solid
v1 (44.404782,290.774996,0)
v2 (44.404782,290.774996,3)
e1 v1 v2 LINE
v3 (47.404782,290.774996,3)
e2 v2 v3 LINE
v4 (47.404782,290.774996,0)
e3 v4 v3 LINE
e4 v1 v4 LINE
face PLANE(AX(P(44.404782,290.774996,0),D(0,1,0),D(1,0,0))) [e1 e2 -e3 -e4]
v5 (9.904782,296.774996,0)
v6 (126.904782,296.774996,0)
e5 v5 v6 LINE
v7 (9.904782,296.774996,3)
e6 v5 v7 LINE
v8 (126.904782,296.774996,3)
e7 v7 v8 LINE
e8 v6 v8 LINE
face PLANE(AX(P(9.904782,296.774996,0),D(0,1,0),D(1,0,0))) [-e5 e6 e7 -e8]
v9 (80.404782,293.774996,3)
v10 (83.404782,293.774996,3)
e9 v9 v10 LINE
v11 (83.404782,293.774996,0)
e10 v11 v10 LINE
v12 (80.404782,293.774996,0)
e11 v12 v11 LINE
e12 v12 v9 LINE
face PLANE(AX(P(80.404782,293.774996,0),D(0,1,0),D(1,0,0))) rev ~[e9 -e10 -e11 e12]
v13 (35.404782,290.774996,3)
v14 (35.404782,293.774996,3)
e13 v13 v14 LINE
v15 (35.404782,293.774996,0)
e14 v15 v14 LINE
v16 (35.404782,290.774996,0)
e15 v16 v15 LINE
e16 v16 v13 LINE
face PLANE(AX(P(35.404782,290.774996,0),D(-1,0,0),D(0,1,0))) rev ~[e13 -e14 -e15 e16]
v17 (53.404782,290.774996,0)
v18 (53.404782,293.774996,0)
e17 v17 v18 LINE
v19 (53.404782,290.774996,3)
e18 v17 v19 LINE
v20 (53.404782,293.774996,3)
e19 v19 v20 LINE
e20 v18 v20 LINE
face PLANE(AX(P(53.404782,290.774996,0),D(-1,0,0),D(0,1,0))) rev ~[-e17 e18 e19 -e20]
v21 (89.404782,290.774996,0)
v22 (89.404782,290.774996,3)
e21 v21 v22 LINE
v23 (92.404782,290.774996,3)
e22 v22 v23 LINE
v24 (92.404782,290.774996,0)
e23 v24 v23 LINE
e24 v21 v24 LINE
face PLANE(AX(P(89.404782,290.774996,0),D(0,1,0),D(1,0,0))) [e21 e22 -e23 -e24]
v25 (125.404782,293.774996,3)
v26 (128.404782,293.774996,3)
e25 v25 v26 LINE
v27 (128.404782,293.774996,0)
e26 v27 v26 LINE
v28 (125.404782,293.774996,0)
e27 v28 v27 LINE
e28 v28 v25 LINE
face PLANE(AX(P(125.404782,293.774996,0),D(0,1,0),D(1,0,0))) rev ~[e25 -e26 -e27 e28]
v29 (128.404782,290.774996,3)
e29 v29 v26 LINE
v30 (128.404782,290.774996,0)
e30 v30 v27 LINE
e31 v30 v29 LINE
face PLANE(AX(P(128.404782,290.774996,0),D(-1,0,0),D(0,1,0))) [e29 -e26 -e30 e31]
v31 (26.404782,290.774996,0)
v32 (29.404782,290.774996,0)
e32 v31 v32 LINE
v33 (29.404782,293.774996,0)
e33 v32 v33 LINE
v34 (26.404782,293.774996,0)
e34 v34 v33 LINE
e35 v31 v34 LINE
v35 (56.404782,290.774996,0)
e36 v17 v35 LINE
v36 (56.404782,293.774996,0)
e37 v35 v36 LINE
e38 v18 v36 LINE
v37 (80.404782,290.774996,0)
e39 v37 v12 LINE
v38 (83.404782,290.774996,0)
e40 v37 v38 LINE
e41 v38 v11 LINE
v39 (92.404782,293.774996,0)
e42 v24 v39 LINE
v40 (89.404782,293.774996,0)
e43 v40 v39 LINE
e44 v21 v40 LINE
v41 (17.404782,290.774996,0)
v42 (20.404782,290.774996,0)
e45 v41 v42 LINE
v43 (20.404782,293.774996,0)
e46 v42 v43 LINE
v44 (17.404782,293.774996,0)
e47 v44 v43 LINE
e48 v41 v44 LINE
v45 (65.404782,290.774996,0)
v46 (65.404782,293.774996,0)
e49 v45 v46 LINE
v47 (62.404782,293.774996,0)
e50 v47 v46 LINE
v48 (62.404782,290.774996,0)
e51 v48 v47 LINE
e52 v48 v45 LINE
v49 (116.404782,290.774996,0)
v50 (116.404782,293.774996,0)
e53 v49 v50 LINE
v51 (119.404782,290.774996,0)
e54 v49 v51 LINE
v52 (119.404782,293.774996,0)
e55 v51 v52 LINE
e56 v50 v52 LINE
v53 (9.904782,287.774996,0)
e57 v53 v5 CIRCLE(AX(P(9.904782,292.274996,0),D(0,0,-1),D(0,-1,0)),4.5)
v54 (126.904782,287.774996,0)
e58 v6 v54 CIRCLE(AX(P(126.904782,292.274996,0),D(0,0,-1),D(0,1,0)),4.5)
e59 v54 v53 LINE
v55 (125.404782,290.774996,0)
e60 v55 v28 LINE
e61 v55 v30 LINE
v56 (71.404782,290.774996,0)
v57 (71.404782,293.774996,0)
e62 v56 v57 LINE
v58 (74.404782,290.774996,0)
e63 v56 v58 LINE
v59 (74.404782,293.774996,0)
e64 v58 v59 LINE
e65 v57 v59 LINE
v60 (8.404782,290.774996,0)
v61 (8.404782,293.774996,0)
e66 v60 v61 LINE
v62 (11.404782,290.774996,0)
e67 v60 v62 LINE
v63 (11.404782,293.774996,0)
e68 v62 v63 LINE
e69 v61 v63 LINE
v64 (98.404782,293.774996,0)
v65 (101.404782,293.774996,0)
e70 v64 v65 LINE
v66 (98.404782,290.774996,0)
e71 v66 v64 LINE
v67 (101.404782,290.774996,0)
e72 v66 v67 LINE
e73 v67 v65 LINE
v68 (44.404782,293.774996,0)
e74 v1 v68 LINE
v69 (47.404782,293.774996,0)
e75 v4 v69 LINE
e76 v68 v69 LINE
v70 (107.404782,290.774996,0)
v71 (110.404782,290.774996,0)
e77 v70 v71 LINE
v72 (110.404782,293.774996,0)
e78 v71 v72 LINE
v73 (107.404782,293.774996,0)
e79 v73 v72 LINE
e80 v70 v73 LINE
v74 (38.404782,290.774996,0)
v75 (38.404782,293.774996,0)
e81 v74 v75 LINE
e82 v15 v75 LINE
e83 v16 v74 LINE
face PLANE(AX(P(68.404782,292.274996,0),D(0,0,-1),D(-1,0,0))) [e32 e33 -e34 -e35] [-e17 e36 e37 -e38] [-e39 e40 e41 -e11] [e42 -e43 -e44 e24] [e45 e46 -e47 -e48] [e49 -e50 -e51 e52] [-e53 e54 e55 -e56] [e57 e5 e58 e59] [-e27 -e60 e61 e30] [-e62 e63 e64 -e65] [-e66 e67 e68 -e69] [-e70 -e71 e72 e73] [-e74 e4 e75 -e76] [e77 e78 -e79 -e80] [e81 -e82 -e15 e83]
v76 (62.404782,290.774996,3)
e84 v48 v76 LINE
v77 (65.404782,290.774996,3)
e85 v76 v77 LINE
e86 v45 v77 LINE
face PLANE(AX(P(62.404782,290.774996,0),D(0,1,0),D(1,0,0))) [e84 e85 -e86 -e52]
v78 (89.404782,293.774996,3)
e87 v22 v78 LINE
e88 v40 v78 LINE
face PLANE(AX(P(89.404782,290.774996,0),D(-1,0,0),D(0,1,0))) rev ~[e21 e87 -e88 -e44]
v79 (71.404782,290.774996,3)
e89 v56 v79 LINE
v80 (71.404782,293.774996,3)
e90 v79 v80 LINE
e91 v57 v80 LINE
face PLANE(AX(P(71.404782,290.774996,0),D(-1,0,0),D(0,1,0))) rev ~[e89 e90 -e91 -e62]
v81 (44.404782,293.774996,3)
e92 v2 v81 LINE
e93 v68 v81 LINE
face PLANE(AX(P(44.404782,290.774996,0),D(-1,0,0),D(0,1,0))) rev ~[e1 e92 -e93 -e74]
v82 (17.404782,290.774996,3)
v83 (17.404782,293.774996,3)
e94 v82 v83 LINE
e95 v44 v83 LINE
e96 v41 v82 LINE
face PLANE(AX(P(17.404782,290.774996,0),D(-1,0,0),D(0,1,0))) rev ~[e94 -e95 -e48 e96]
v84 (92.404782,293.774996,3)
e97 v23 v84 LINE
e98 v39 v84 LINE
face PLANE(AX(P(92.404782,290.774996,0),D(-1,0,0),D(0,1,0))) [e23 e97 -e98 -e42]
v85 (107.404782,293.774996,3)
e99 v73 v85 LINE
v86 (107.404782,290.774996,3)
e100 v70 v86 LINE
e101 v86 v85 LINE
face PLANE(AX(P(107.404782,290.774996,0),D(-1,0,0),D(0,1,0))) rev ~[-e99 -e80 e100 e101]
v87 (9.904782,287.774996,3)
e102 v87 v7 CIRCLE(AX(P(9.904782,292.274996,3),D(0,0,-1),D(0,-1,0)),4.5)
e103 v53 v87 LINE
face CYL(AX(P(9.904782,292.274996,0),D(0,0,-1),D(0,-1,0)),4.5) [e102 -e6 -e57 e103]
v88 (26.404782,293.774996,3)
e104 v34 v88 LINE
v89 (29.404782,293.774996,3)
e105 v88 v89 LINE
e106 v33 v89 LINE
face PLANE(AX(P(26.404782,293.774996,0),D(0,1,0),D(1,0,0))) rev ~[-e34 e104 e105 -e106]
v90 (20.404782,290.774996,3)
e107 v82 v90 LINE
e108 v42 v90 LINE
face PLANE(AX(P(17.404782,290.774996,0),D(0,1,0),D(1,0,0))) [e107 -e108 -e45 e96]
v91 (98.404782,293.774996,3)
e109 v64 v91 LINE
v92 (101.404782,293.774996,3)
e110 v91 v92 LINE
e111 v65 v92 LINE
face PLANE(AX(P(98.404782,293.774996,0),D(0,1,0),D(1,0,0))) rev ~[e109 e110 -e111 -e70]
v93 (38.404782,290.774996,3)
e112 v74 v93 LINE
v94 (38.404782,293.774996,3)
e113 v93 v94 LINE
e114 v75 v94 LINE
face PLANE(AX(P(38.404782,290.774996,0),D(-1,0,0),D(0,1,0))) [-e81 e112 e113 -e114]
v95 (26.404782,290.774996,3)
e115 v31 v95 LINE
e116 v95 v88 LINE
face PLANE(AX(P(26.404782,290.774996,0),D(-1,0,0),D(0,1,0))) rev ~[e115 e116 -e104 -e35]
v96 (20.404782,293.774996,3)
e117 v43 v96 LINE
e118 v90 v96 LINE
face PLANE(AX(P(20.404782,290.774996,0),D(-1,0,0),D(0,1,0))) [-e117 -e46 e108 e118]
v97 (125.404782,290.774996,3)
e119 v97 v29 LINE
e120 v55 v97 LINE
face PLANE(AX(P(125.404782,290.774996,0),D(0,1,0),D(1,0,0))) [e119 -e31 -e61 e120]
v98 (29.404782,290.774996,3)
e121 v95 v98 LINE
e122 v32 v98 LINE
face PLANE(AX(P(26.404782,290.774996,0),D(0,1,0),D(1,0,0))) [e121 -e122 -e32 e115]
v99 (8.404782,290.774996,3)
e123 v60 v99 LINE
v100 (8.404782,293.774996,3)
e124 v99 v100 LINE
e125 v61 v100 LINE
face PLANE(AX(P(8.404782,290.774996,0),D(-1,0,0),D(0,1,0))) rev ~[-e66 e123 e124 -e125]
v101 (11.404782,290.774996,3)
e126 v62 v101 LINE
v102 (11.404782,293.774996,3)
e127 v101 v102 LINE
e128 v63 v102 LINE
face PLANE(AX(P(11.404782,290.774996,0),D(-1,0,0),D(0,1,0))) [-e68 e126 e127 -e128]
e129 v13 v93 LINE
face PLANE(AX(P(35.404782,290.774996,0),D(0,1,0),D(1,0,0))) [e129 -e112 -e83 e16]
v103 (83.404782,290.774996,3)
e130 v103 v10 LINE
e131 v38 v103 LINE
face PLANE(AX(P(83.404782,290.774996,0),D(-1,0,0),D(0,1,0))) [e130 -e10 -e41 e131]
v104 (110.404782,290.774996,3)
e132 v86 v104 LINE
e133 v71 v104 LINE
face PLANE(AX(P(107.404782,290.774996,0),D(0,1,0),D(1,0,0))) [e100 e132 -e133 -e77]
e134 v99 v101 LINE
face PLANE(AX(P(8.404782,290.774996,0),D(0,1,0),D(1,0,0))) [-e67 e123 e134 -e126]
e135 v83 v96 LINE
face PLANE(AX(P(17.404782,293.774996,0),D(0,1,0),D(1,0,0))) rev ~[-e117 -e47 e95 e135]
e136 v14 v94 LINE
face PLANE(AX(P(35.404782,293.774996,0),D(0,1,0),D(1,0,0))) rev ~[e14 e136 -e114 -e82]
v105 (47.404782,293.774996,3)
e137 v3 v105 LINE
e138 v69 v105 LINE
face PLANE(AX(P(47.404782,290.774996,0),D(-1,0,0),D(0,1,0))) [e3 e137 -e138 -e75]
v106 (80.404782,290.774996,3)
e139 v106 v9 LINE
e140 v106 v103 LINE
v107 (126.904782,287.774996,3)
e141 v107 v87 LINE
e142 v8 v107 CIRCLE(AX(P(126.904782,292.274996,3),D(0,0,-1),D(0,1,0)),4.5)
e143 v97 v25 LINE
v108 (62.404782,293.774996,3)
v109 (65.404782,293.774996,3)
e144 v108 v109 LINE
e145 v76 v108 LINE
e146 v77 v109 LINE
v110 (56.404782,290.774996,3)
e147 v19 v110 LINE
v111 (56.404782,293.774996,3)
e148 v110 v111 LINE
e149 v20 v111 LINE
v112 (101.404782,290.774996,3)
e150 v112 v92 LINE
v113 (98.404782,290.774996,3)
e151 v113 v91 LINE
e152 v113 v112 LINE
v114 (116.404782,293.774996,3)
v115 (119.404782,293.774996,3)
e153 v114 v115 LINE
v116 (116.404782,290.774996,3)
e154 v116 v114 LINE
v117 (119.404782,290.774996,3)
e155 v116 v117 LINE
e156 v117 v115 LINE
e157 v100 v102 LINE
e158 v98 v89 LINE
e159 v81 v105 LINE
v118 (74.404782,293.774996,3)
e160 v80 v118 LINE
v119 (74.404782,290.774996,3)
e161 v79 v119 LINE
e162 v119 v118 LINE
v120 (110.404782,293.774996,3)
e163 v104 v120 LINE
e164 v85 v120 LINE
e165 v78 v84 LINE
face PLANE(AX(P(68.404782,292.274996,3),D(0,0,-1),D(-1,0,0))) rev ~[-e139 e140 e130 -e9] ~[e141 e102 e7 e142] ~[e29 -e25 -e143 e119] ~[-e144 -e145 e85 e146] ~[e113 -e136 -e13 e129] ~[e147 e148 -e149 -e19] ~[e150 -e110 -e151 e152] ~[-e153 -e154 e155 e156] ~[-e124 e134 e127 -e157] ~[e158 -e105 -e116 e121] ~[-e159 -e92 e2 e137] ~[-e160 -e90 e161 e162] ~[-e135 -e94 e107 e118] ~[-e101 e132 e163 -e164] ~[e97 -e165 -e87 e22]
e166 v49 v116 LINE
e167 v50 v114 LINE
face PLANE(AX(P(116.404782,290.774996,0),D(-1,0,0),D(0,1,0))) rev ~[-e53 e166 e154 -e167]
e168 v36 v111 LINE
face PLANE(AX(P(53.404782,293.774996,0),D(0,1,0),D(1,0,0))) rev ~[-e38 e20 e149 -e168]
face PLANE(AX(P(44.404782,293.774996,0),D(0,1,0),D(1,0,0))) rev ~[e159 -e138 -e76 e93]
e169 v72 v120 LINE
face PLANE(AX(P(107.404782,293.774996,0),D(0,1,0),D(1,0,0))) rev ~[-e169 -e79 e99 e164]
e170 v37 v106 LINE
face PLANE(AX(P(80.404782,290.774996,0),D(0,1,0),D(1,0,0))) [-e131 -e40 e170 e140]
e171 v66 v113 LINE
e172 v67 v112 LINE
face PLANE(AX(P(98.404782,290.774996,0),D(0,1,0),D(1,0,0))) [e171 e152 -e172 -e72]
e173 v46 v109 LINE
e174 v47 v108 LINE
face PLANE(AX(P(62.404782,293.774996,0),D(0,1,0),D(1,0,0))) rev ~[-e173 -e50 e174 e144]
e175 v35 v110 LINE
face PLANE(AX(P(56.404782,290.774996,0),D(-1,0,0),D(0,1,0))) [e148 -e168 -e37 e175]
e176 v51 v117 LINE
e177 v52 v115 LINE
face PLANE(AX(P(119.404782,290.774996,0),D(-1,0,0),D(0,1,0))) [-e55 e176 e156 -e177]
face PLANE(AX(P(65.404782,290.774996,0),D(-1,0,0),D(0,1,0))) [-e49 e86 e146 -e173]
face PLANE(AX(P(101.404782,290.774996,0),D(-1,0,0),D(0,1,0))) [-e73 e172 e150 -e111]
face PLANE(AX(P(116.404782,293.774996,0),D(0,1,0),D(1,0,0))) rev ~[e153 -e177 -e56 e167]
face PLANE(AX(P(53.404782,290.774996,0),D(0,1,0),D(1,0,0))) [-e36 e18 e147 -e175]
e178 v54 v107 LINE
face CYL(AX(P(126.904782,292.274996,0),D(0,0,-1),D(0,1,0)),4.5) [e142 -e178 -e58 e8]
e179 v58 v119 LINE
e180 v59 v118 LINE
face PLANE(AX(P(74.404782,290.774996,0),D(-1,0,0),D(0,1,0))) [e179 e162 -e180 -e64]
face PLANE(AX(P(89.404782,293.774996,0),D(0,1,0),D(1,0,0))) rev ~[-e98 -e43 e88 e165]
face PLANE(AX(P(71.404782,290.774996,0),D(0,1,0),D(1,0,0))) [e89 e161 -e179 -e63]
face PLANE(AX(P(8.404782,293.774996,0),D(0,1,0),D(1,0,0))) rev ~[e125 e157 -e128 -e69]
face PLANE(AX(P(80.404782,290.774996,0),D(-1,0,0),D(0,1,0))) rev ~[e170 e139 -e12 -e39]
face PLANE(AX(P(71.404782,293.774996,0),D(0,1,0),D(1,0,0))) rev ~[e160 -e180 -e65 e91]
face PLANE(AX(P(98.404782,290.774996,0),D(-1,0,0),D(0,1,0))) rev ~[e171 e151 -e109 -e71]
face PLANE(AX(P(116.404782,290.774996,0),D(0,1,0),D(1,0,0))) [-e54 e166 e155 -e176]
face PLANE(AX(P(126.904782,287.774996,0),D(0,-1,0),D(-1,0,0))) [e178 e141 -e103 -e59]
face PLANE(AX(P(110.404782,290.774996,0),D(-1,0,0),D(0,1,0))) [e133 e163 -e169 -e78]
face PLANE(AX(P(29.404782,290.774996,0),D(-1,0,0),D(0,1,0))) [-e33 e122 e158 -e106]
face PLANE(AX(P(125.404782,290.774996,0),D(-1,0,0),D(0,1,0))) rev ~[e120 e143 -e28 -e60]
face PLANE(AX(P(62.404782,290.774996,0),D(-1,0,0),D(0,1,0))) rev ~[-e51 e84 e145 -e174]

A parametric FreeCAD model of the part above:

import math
import FreeCAD as App
import Part
import Sketcher


def add_polygon(sketch, points):
    """Adds a closed chain of lines whose ends are joined by coincident constraints."""
    first, n = sketch.GeometryCount, len(points)
    for a, b in zip(points, points[1:] + points[:1]):
        sketch.addGeometry(Part.LineSegment(App.Vector(*a, 0), App.Vector(*b, 0)), False)
    for i in range(n):
        sketch.addConstraint(Sketcher.Constraint("Coincident", first + i, 2, first + (i + 1) % n, 1))

doc = App.newDocument("Part")
body = doc.addObject("PartDesign::Body", "Body")

# Sketch on XY plane
sketch1 = body.newObject("Sketcher::SketchObject", "Sketch")
sketch1.AttachmentSupport = (doc.getObject("XY_Plane"), [""])
sketch1.MapMode = "FlatFace"
sketch1.addGeometry(Part.LineSegment(App.Vector(126.9, 296.8, 0), App.Vector(9.9, 296.8, 0)), False)  # 0
sketch1.addGeometry(Part.ArcOfCircle(Part.Circle(App.Vector(9.9, 292.3, 0), App.Vector(0, 0, 1), 4.5), math.radians(90), math.radians(270)), False)  # 1
sketch1.addGeometry(Part.LineSegment(App.Vector(9.9, 287.8, 0), App.Vector(126.9, 287.8, 0)), False)  # 2
sketch1.addGeometry(Part.ArcOfCircle(Part.Circle(App.Vector(126.9, 292.3, 0), App.Vector(0, 0, 1), 4.5), math.radians(-90), math.radians(90)), False)  # 3
add_polygon(sketch1, [(125.4, 290.8), (125.4, 293.8), (128.4, 293.8), (128.4, 290.8)])  # lines 4-7
add_polygon(sketch1, [(116.4, 290.8), (116.4, 293.8), (119.4, 293.8), (119.4, 290.8)])  # lines 8-11
add_polygon(sketch1, [(107.4, 290.8), (107.4, 293.8), (110.4, 293.8), (110.4, 290.8)])  # lines 12-15
add_polygon(sketch1, [(98.4, 290.8), (98.4, 293.8), (101.4, 293.8), (101.4, 290.8)])  # lines 16-19
add_polygon(sketch1, [(89.4, 290.8), (89.4, 293.8), (92.4, 293.8), (92.4, 290.8)])  # lines 20-23
add_polygon(sketch1, [(80.4, 290.8), (80.4, 293.8), (83.4, 293.8), (83.4, 290.8)])  # lines 24-27
add_polygon(sketch1, [(71.4, 290.8), (71.4, 293.8), (74.4, 293.8), (74.4, 290.8)])  # lines 28-31
add_polygon(sketch1, [(62.4, 290.8), (62.4, 293.8), (65.4, 293.8), (65.4, 290.8)])  # lines 32-35
add_polygon(sketch1, [(53.4, 290.8), (53.4, 293.8), (56.4, 293.8), (56.4, 290.8)])  # lines 36-39
add_polygon(sketch1, [(44.4, 290.8), (44.4, 293.8), (47.4, 293.8), (47.4, 290.8)])  # lines 40-43
add_polygon(sketch1, [(35.4, 290.8), (35.4, 293.8), (38.4, 293.8), (38.4, 290.8)])  # lines 44-47
add_polygon(sketch1, [(26.4, 290.8), (26.4, 293.8), (29.4, 293.8), (29.4, 290.8)])  # lines 48-51
add_polygon(sketch1, [(17.4, 290.8), (17.4, 293.8), (20.4, 293.8), (20.4, 290.8)])  # lines 52-55
add_polygon(sketch1, [(8.4, 290.8), (8.4, 293.8), (11.4, 293.8), (11.4, 290.8)])  # lines 56-59
sketch1.addConstraint(Sketcher.Constraint("Tangent", 0, 2, 1, 1))
sketch1.addConstraint(Sketcher.Constraint("Tangent", 1, 2, 2, 1))
sketch1.addConstraint(Sketcher.Constraint("Tangent", 2, 2, 3, 1))
sketch1.addConstraint(Sketcher.Constraint("Tangent", 3, 2, 0, 1))
sketch1.addConstraint(Sketcher.Constraint("Horizontal", 0))
sketch1.addConstraint(Sketcher.Constraint("Horizontal", 2))
sketch1.addConstraint(Sketcher.Constraint("Vertical", 4))
sketch1.addConstraint(Sketcher.Constraint("Horizontal", 5))
sketch1.addConstraint(Sketcher.Constraint("Vertical", 6))
sketch1.addConstraint(Sketcher.Constraint("Horizontal", 7))
sketch1.addConstraint(Sketcher.Constraint("Vertical", 8))
sketch1.addConstraint(Sketcher.Constraint("Horizontal", 9))
sketch1.addConstraint(Sketcher.Constraint("Vertical", 10))
sketch1.addConstraint(Sketcher.Constraint("Horizontal", 11))
sketch1.addConstraint(Sketcher.Constraint("Vertical", 12))
sketch1.addConstraint(Sketcher.Constraint("Horizontal", 13))
sketch1.addConstraint(Sketcher.Constraint("Vertical", 14))
sketch1.addConstraint(Sketcher.Constraint("Horizontal", 15))
sketch1.addConstraint(Sketcher.Constraint("Vertical", 16))
sketch1.addConstraint(Sketcher.Constraint("Horizontal", 17))
sketch1.addConstraint(Sketcher.Constraint("Vertical", 18))
sketch1.addConstraint(Sketcher.Constraint("Horizontal", 19))
sketch1.addConstraint(Sketcher.Constraint("Vertical", 20))
sketch1.addConstraint(Sketcher.Constraint("Horizontal", 21))
sketch1.addConstraint(Sketcher.Constraint("Vertical", 22))
sketch1.addConstraint(Sketcher.Constraint("Horizontal", 23))
sketch1.addConstraint(Sketcher.Constraint("Vertical", 24))
sketch1.addConstraint(Sketcher.Constraint("Horizontal", 25))
sketch1.addConstraint(Sketcher.Constraint("Vertical", 26))
sketch1.addConstraint(Sketcher.Constraint("Horizontal", 27))
sketch1.addConstraint(Sketcher.Constraint("Vertical", 28))
sketch1.addConstraint(Sketcher.Constraint("Horizontal", 29))
sketch1.addConstraint(Sketcher.Constraint("Vertical", 30))
sketch1.addConstraint(Sketcher.Constraint("Horizontal", 31))
sketch1.addConstraint(Sketcher.Constraint("Vertical", 32))
sketch1.addConstraint(Sketcher.Constraint("Horizontal", 33))
sketch1.addConstraint(Sketcher.Constraint("Vertical", 34))
sketch1.addConstraint(Sketcher.Constraint("Horizontal", 35))
sketch1.addConstraint(Sketcher.Constraint("Vertical", 36))
sketch1.addConstraint(Sketcher.Constraint("Horizontal", 37))
sketch1.addConstraint(Sketcher.Constraint("Vertical", 38))
sketch1.addConstraint(Sketcher.Constraint("Horizontal", 39))
sketch1.addConstraint(Sketcher.Constraint("Vertical", 40))
sketch1.addConstraint(Sketcher.Constraint("Horizontal", 41))
sketch1.addConstraint(Sketcher.Constraint("Vertical", 42))
sketch1.addConstraint(Sketcher.Constraint("Horizontal", 43))
sketch1.addConstraint(Sketcher.Constraint("Vertical", 44))
sketch1.addConstraint(Sketcher.Constraint("Horizontal", 45))
sketch1.addConstraint(Sketcher.Constraint("Vertical", 46))
sketch1.addConstraint(Sketcher.Constraint("Horizontal", 47))
sketch1.addConstraint(Sketcher.Constraint("Vertical", 48))
sketch1.addConstraint(Sketcher.Constraint("Horizontal", 49))
sketch1.addConstraint(Sketcher.Constraint("Vertical", 50))
sketch1.addConstraint(Sketcher.Constraint("Horizontal", 51))
sketch1.addConstraint(Sketcher.Constraint("Vertical", 52))
sketch1.addConstraint(Sketcher.Constraint("Horizontal", 53))
sketch1.addConstraint(Sketcher.Constraint("Vertical", 54))
sketch1.addConstraint(Sketcher.Constraint("Horizontal", 55))
sketch1.addConstraint(Sketcher.Constraint("Vertical", 56))
sketch1.addConstraint(Sketcher.Constraint("Horizontal", 57))
sketch1.addConstraint(Sketcher.Constraint("Vertical", 58))
sketch1.addConstraint(Sketcher.Constraint("Horizontal", 59))
sketch1.addConstraint(Sketcher.Constraint("Horizontal", 5, 2, 8, 2))
sketch1.addConstraint(Sketcher.Constraint("Horizontal", 7, 2, 10, 2))
sketch1.addConstraint(Sketcher.Constraint("Horizontal", 9, 2, 12, 2))
sketch1.addConstraint(Sketcher.Constraint("Horizontal", 11, 2, 14, 2))
sketch1.addConstraint(Sketcher.Constraint("Horizontal", 13, 2, 16, 2))
sketch1.addConstraint(Sketcher.Constraint("Horizontal", 15, 2, 18, 2))
sketch1.addConstraint(Sketcher.Constraint("Horizontal", 17, 2, 20, 2))
sketch1.addConstraint(Sketcher.Constraint("Horizontal", 19, 2, 22, 2))
sketch1.addConstraint(Sketcher.Constraint("Horizontal", 21, 2, 24, 2))
sketch1.addConstraint(Sketcher.Constraint("Horizontal", 23, 2, 26, 2))
sketch1.addConstraint(Sketcher.Constraint("Horizontal", 25, 2, 28, 2))
sketch1.addConstraint(Sketcher.Constraint("Horizontal", 27, 2, 30, 2))
sketch1.addConstraint(Sketcher.Constraint("Horizontal", 29, 2, 32, 2))
sketch1.addConstraint(Sketcher.Constraint("Horizontal", 31, 2, 34, 2))
sketch1.addConstraint(Sketcher.Constraint("Horizontal", 33, 2, 36, 2))
sketch1.addConstraint(Sketcher.Constraint("Horizontal", 35, 2, 38, 2))
sketch1.addConstraint(Sketcher.Constraint("Horizontal", 37, 2, 40, 2))
sketch1.addConstraint(Sketcher.Constraint("Horizontal", 39, 2, 42, 2))
sketch1.addConstraint(Sketcher.Constraint("Horizontal", 41, 2, 44, 2))
sketch1.addConstraint(Sketcher.Constraint("Horizontal", 43, 2, 46, 2))
sketch1.addConstraint(Sketcher.Constraint("Horizontal", 45, 2, 48, 2))
sketch1.addConstraint(Sketcher.Constraint("Horizontal", 47, 2, 50, 2))
sketch1.addConstraint(Sketcher.Constraint("Horizontal", 49, 2, 52, 2))
sketch1.addConstraint(Sketcher.Constraint("Horizontal", 51, 2, 54, 2))
sketch1.addConstraint(Sketcher.Constraint("Horizontal", 53, 2, 56, 2))
sketch1.addConstraint(Sketcher.Constraint("Horizontal", 55, 2, 58, 2))
sketch1.addConstraint(Sketcher.Constraint("Equal", 7, 9))
sketch1.addConstraint(Sketcher.Constraint("Equal", 11, 13))
sketch1.addConstraint(Sketcher.Constraint("Equal", 15, 17))
sketch1.addConstraint(Sketcher.Constraint("Equal", 19, 21))
sketch1.addConstraint(Sketcher.Constraint("Equal", 23, 25))
sketch1.addConstraint(Sketcher.Constraint("Equal", 27, 29))
sketch1.addConstraint(Sketcher.Constraint("Equal", 31, 33))
sketch1.addConstraint(Sketcher.Constraint("Equal", 35, 37))
sketch1.addConstraint(Sketcher.Constraint("Equal", 39, 41))
sketch1.addConstraint(Sketcher.Constraint("Equal", 43, 45))
sketch1.addConstraint(Sketcher.Constraint("Equal", 47, 49))
sketch1.addConstraint(Sketcher.Constraint("Equal", 51, 53))
sketch1.addConstraint(Sketcher.Constraint("Equal", 55, 57))
sketch1.addConstraint(Sketcher.Constraint("Equal", 59, 4))
sketch1.addConstraint(Sketcher.Constraint("Radius", 1, 4.5))
sketch1.addConstraint(Sketcher.Constraint("DistanceX", 0, 2, 0, 1, 117.0))
sketch1.addConstraint(Sketcher.Constraint("DistanceX", 5, 1, 5, 2, 3.0))
sketch1.addConstraint(Sketcher.Constraint("DistanceX", -1, 1, 1, 3, 9.904782))
sketch1.addConstraint(Sketcher.Constraint("DistanceX", -1, 1, 4, 2, 125.404782))
sketch1.addConstraint(Sketcher.Constraint("DistanceX", -1, 1, 8, 2, 116.404782))
sketch1.addConstraint(Sketcher.Constraint("DistanceX", -1, 1, 12, 2, 107.404782))
sketch1.addConstraint(Sketcher.Constraint("DistanceX", -1, 1, 16, 2, 98.404782))
sketch1.addConstraint(Sketcher.Constraint("DistanceX", -1, 1, 20, 2, 89.404782))
sketch1.addConstraint(Sketcher.Constraint("DistanceX", -1, 1, 24, 2, 80.404782))
sketch1.addConstraint(Sketcher.Constraint("DistanceX", -1, 1, 28, 2, 71.404782))
sketch1.addConstraint(Sketcher.Constraint("DistanceX", -1, 1, 32, 2, 62.404782))
sketch1.addConstraint(Sketcher.Constraint("DistanceX", -1, 1, 36, 2, 53.404782))
sketch1.addConstraint(Sketcher.Constraint("DistanceX", -1, 1, 40, 2, 44.404782))
sketch1.addConstraint(Sketcher.Constraint("DistanceX", -1, 1, 44, 2, 35.404782))
sketch1.addConstraint(Sketcher.Constraint("DistanceX", -1, 1, 48, 2, 26.404782))
sketch1.addConstraint(Sketcher.Constraint("DistanceX", -1, 1, 52, 2, 17.404782))
sketch1.addConstraint(Sketcher.Constraint("DistanceX", -1, 1, 56, 2, 8.404782))
sketch1.addConstraint(Sketcher.Constraint("DistanceY", -1, 1, 1, 3, 292.274996))
sketch1.addConstraint(Sketcher.Constraint("DistanceY", -1, 1, 4, 2, 293.774996))
pad1 = body.newObject("PartDesign::Pad", "Pad")
pad1.Profile = sketch1
pad1.Length = 3

doc.recompute()
